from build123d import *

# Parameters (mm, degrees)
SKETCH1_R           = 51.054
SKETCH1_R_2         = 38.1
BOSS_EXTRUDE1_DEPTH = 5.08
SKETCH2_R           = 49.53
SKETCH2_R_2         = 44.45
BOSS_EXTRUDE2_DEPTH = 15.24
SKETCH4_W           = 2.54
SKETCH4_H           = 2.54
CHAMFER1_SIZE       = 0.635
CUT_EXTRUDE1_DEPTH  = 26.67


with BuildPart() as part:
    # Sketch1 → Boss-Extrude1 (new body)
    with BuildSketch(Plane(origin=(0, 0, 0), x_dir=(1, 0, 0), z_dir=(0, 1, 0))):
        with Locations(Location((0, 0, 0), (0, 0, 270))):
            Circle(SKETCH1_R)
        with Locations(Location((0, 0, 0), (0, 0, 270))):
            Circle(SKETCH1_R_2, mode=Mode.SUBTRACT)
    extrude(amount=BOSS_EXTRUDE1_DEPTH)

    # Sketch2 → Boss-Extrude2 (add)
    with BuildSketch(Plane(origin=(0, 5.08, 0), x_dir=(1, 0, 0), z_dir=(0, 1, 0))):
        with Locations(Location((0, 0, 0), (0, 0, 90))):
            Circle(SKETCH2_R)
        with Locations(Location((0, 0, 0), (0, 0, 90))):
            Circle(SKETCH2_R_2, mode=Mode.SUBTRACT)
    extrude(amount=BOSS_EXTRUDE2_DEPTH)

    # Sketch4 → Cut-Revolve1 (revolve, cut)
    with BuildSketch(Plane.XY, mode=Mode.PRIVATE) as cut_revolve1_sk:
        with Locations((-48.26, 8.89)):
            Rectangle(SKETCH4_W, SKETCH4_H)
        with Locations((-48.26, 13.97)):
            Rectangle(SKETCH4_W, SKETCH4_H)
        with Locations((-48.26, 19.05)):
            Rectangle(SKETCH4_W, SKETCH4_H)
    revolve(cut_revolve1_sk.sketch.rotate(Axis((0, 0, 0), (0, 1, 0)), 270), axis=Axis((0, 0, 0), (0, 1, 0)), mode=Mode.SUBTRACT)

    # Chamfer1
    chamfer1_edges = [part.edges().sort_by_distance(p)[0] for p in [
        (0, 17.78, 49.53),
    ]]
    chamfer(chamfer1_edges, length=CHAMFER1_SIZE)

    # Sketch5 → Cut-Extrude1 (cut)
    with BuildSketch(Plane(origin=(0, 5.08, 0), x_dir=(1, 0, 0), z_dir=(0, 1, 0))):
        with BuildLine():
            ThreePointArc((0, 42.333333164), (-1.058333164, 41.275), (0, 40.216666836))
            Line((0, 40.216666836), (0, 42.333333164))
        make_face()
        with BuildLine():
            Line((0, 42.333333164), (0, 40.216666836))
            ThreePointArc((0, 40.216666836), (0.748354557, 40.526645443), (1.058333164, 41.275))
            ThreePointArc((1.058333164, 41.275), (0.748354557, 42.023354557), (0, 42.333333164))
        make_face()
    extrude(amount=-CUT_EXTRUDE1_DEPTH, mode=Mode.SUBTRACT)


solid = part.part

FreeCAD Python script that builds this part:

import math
import FreeCAD as App
import Part
import Sketcher
Q = App.Units.Quantity


def edges_at(feature, points):
    """Names of the edges that pass closest to the given points."""
    edges = feature.Shape.Edges
    near = lambda p: min(range(len(edges)), key=lambda i: edges[i].distToShape(Part.Vertex(*p))[0])
    return sorted({f"Edge{near(p) + 1}" for p in points})

doc = App.newDocument("Part")
body = doc.addObject("PartDesign::Body", "Body")

# Sketch on XZ plane
sketch1 = body.newObject("Sketcher::SketchObject", "Sketch")
sketch1.AttachmentSupport = (doc.getObject("XZ_Plane"), [""])
sketch1.MapMode = "FlatFace"
sketch1.addGeometry(Part.Circle(App.Vector(0, 0, 0), App.Vector(0, 0, 1), 51), False)
sketch1.addGeometry(Part.Circle(App.Vector(0, 0, 0), App.Vector(0, 0, 1), 38), False)
sketch1.addConstraint(Sketcher.Constraint("Coincident", 0, 3, -1, 1))
sketch1.addConstraint(Sketcher.Constraint("Coincident", 1, 3, -1, 1))
sketch1.addConstraint(Sketcher.Constraint("Diameter", 1, Q("3 in")))
sketch1.addConstraint(Sketcher.Constraint("Diameter", 0, Q("4.02 in")))
pad1 = body.newObject("PartDesign::Pad", "Pad")
pad1.Profile = sketch1
pad1.Length = Q("0.2 in")
pad1.Reversed = True

# Sketch on XZ plane
sketch2 = body.newObject("Sketcher::SketchObject", "Sketch001")
sketch2.AttachmentSupport = (doc.getObject("XZ_Plane"), [""])
sketch2.MapMode = "FlatFace"
sketch2.AttachmentOffset = App.Placement(App.Vector(0, 0, -0.2 * 25.4), App.Rotation())
sketch2.addGeometry(Part.Circle(App.Vector(0, 0, 0), App.Vector(0, 0, 1), 50), False)
sketch2.addGeometry(Part.Circle(App.Vector(0, 0, 0), App.Vector(0, 0, 1), 44), False)
sketch2.addConstraint(Sketcher.Constraint("Coincident", 0, 3, -1, 1))
sketch2.addConstraint(Sketcher.Constraint("Coincident", 1, 3, -1, 1))
sketch2.addConstraint(Sketcher.Constraint("Diameter", 0, Q("3.9 in")))
sketch2.addConstraint(Sketcher.Constraint("Diameter", 1, Q("3.5 in")))
pad2 = body.newObject("PartDesign::Pad", "Pad001")
pad2.Profile = sketch2
pad2.Length = Q("0.6 in")
pad2.Reversed = True

# Sketch on XY plane
sketch3 = body.newObject("Sketcher::SketchObject", "Sketch002")
sketch3.AttachmentSupport = (doc.getObject("XY_Plane"), [""])
sketch3.MapMode = "FlatFace"
sketch3.addGeometry(Part.LineSegment(App.Vector(-49.5, 10.2, 0), App.Vector(-49.5, 7.6, 0)), False)
sketch3.addGeometry(Part.LineSegment(App.Vector(-49.5, 7.6, 0), App.Vector(-47, 7.6, 0)), False)
sketch3.addGeometry(Part.LineSegment(App.Vector(-47, 7.6, 0), App.Vector(-47, 10.2, 0)), False)
sketch3.addGeometry(Part.LineSegment(App.Vector(-47, 10.2, 0), App.Vector(-49.5, 10.2, 0)), False)
sketch3.addGeometry(Part.LineSegment(App.Vector(-49.5, 15.2, 0), App.Vector(-49.5, 12.7, 0)), False)
sketch3.addGeometry(Part.LineSegment(App.Vector(-49.5, 12.7, 0), App.Vector(-47, 12.7, 0)), False)
sketch3.addGeometry(Part.LineSegment(App.Vector(-47, 12.7, 0), App.Vector(-47, 15.2, 0)), False)
sketch3.addGeometry(Part.LineSegment(App.Vector(-47, 15.2, 0), App.Vector(-49.5, 15.2, 0)), False)
sketch3.addGeometry(Part.LineSegment(App.Vector(-49.5, 20.3, 0), App.Vector(-49.5, 17.8, 0)), False)
sketch3.addGeometry(Part.LineSegment(App.Vector(-49.5, 17.8, 0), App.Vector(-47, 17.8, 0)), False)
sketch3.addGeometry(Part.LineSegment(App.Vector(-47, 17.8, 0), App.Vector(-47, 20.3, 0)), False)
sketch3.addGeometry(Part.LineSegment(App.Vector(-47, 20.3, 0), App.Vector(-49.5, 20.3, 0)), False)
sketch3.addConstraint(Sketcher.Constraint("Coincident", 0, 2, 1, 1))
sketch3.addConstraint(Sketcher.Constraint("Coincident", 1, 2, 2, 1))
sketch3.addConstraint(Sketcher.Constraint("Coincident", 2, 2, 3, 1))
sketch3.addConstraint(Sketcher.Constraint("Coincident", 3, 2, 0, 1))
sketch3.addConstraint(Sketcher.Constraint("Coincident", 4, 2, 5, 1))
sketch3.addConstraint(Sketcher.Constraint("Coincident", 5, 2, 6, 1))
sketch3.addConstraint(Sketcher.Constraint("Coincident", 6, 2, 7, 1))
sketch3.addConstraint(Sketcher.Constraint("Coincident", 7, 2, 4, 1))
sketch3.addConstraint(Sketcher.Constraint("Coincident", 8, 2, 9, 1))
sketch3.addConstraint(Sketcher.Constraint("Coincident", 9, 2, 10, 1))
sketch3.addConstraint(Sketcher.Constraint("Coincident", 10, 2, 11, 1))
sketch3.addConstraint(Sketcher.Constraint("Coincident", 11, 2, 8, 1))
sketch3.addConstraint(Sketcher.Constraint("Vertical", 0))
sketch3.addConstraint(Sketcher.Constraint("Horizontal", 1))
sketch3.addConstraint(Sketcher.Constraint("Vertical", 2))
sketch3.addConstraint(Sketcher.Constraint("Horizontal", 3))
sketch3.addConstraint(Sketcher.Constraint("Vertical", 4))
sketch3.addConstraint(Sketcher.Constraint("Horizontal", 5))
sketch3.addConstraint(Sketcher.Constraint("Vertical", 6))
sketch3.addConstraint(Sketcher.Constraint("Horizontal", 7))
sketch3.addConstraint(Sketcher.Constraint("Vertical", 8))
sketch3.addConstraint(Sketcher.Constraint("Horizontal", 9))
sketch3.addConstraint(Sketcher.Constraint("Vertical", 10))
sketch3.addConstraint(Sketcher.Constraint("Horizontal", 11))
sketch3.addConstraint(Sketcher.Constraint("Vertical", 3, 2, 4, 2))
sketch3.addConstraint(Sketcher.Constraint("Vertical", 2, 2, 5, 2))
sketch3.addConstraint(Sketcher.Constraint("Vertical", 7, 2, 8, 2))
sketch3.addConstraint(Sketcher.Constraint("Vertical", 6, 2, 9, 2))
sketch3.addConstraint(Sketcher.Constraint("Equal", 11, 0))
sketch3.addConstraint(Sketcher.Constraint("Equal", 2, 4))
sketch3.addConstraint(Sketcher.Constraint("Equal", 6, 8))
sketch3.addConstraint(Sketcher.Constraint("DistanceX", 1, 1, 1, 2, Q("0.1 in")))
sketch3.addConstraint(Sketcher.Constraint("DistanceY", -1, 1, 0, 2, Q("0.3 in")))
sketch3.addConstraint(Sketcher.Constraint("DistanceY", -1, 1, 4, 2, Q("0.5 in")))
sketch3.addConstraint(Sketcher.Constraint("DistanceY", -1, 1, 8, 2, Q("0.7 in")))
sketch3.addConstraint(Sketcher.Constraint("DistanceX", 0, 2, -1, 1, Q("1.95 in")))
groove = body.newObject("PartDesign::Groove", "Groove")
groove.Profile = sketch3
groove.ReferenceAxis = (sketch3, ["V_Axis"])
groove.Angle = 360
doc.recompute()

chamfer = body.newObject("PartDesign::Chamfer", "Chamfer")
chamfer.Base = (groove, edges_at(groove, [(0, 17.78, 49.53)]))
chamfer.Size = Q("0.025 in")

# Sketch on XZ plane
sketch4 = body.newObject("Sketcher::SketchObject", "Sketch003")
sketch4.AttachmentSupport = (doc.getObject("XZ_Plane"), [""])
sketch4.MapMode = "FlatFace"
sketch4.AttachmentOffset = App.Placement(App.Vector(0, 0, -0.2 * 25.4), App.Rotation())
sketch4.addGeometry(Part.ArcOfCircle(Part.Circle(App.Vector(0, -41.3, 0), App.Vector(0, 0, 1), 1.1), math.radians(90), math.radians(270)), False)
sketch4.addGeometry(Part.ArcOfCircle(Part.Circle(App.Vector(0, -41.3, 0), App.Vector(0, 0, 1), 1.1), math.radians(0), math.radians(90)), False)
sketch4.addGeometry(Part.ArcOfCircle(Part.Circle(App.Vector(0, -41.3, 0), App.Vector(0, 0, 1), 1.1), math.radians(-90), math.radians(0)), False)
sketch4.addConstraint(Sketcher.Constraint("Tangent", 0, 1, 1, 2))
sketch4.addConstraint(Sketcher.Constraint("Tangent", 1, 1, 2, 2))
sketch4.addConstraint(Sketcher.Constraint("Tangent", 2, 1, 0, 2))
sketch4.addConstraint(Sketcher.Constraint("PointOnObject", 0, 3, -2))
sketch4.addConstraint(Sketcher.Constraint("PointOnObject", 0, 1, -2))
sketch4.addConstraint(Sketcher.Constraint("PointOnObject", 2, 1, -2))
sketch4.addConstraint(Sketcher.Constraint("Horizontal", 2, 3, 1, 1))
sketch4.addConstraint(Sketcher.Constraint("DistanceY", 0, 3, -1, 1, Q("1.625 in")))
sketch4.addConstraint(Sketcher.Constraint("Radius", 0, 1.058333))
pocket1 = body.newObject("PartDesign::Pocket", "Pocket")
pocket1.Profile = sketch4
pocket1.Length = Q("1.05 in")
pocket1.Reversed = True

doc.recompute()
